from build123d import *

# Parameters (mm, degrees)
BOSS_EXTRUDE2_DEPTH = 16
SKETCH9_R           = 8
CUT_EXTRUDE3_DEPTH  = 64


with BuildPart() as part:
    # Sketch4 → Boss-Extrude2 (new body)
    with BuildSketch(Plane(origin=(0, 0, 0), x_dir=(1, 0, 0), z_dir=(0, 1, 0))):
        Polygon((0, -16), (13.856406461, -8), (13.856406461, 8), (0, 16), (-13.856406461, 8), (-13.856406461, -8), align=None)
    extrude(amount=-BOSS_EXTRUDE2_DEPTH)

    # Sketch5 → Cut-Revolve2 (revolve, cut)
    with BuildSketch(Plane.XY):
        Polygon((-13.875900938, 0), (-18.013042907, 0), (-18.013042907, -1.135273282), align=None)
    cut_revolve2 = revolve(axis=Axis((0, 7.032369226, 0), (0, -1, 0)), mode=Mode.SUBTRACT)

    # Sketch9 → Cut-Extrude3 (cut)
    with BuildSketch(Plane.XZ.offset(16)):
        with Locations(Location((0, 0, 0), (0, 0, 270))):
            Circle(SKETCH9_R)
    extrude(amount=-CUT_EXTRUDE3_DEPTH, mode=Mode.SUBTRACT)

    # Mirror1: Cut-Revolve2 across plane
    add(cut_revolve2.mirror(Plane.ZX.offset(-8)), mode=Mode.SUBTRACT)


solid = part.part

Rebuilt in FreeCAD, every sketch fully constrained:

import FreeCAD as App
import Part
import Sketcher

V = App.Vector
Q = App.Units.Quantity


def add_polygon(sketch, points):
    """Adds a closed chain of lines whose ends are joined by coincident constraints."""
    first, n = sketch.GeometryCount, len(points)
    for a, b in zip(points, points[1:] + points[:1]):
        sketch.addGeometry(Part.LineSegment(App.Vector(*a, 0), App.Vector(*b, 0)), False)
    for i in range(n):
        sketch.addConstraint(Sketcher.Constraint("Coincident", first + i, 2, first + (i + 1) % n, 1))

doc = App.newDocument("Part")
body = doc.addObject("PartDesign::Body", "Body")

# Sketch on XZ plane
sketch1 = body.newObject("Sketcher::SketchObject", "Sketch")
sketch1.AttachmentSupport = (doc.getObject("XZ_Plane"), [""])
sketch1.MapMode = "FlatFace"
add_polygon(sketch1, [(0, 16), (14, 8), (14, -8), (0, -16), (-14, -8), (-14, 8)])  # lines 0-5
sketch1.addConstraint(Sketcher.Constraint("Vertical", 1))
sketch1.addConstraint(Sketcher.Constraint("Vertical", 4))
sketch1.addConstraint(Sketcher.Constraint("Symmetric", 0, 2, 3, 2, -1, 1))
sketch1.addConstraint(Sketcher.Constraint("Symmetric", 2, 2, 5, 2, -1, 1))
sketch1.addConstraint(Sketcher.Constraint("PointOnObject", 2, 2, -2))
sketch1.addConstraint(Sketcher.Constraint("Parallel", 2, 5))
sketch1.addConstraint(Sketcher.Constraint("Horizontal", 1, 2, 3, 2))
sketch1.addConstraint(Sketcher.Constraint("DistanceY", 1, 2, 1, 1, 16.0))
sketch1.addConstraint(Sketcher.Constraint("Angle", 0, Q("-30 deg")))
sketch1.addConstraint(Sketcher.Constraint("Distance", 0, 16.0))
pad1 = body.newObject("PartDesign::Pad", "Pad")
pad1.Profile = sketch1
pad1.Length = 16

# Sketch on XY plane
sketch2 = body.newObject("Sketcher::SketchObject", "Sketch001")
sketch2.AttachmentSupport = (doc.getObject("XY_Plane"), [""])
sketch2.MapMode = "FlatFace"
add_polygon(sketch2, [(-13.9, 0), (-18, 0), (-18, -1.1)])  # lines 0-2
sketch2.addConstraint(Sketcher.Constraint("Horizontal", 0))
sketch2.addConstraint(Sketcher.Constraint("Vertical", 1))
sketch2.addConstraint(Sketcher.Constraint("PointOnObject", 0, 2, -1))
sketch2.addConstraint(Sketcher.Constraint("DistanceX", 0, 2, 0, 1, 4.137142))
sketch2.addConstraint(Sketcher.Constraint("DistanceX", 2, 2, -1, 1, 13.875901))
sketch2.addConstraint(Sketcher.Constraint("Distance", 2, 4.29008))
groove = body.newObject("PartDesign::Groove", "Groove")
groove.Profile = sketch2
groove.ReferenceAxis = (sketch2, ["V_Axis"])
groove.Angle = 360

# Sketch on XZ plane
sketch3 = body.newObject("Sketcher::SketchObject", "Sketch002")
sketch3.AttachmentSupport = (doc.getObject("XZ_Plane"), [""])
sketch3.MapMode = "FlatFace"
sketch3.AttachmentOffset = App.Placement(V(0, 0, 16), App.Rotation())
sketch3.addGeometry(Part.Circle(V(0, 0, 0), V(0, 0, 1), 8), False)
sketch3.addConstraint(Sketcher.Constraint("Coincident", 0, 3, -1, 1))
sketch3.addConstraint(Sketcher.Constraint("Diameter", 0, 16.0))
pocket1 = body.newObject("PartDesign::Pocket", "Pocket")
pocket1.Profile = sketch3
pocket1.Length = 64
doc.recompute()

datumplane = body.newObject("PartDesign::Plane", "DatumPlane")
datumplane.AttachmentSupport = (doc.getObject("XZ_Plane"), [""])
datumplane.MapMode = "FlatFace"
datumplane.AttachmentOffset = App.Placement(V(0, 0, 8), App.Rotation())
mirrored = body.newObject("PartDesign::Mirrored", "Mirrored")
mirrored.Originals = [groove]
mirrored.MirrorPlane = (datumplane, [""])
body.Tip = mirrored

doc.recompute()
